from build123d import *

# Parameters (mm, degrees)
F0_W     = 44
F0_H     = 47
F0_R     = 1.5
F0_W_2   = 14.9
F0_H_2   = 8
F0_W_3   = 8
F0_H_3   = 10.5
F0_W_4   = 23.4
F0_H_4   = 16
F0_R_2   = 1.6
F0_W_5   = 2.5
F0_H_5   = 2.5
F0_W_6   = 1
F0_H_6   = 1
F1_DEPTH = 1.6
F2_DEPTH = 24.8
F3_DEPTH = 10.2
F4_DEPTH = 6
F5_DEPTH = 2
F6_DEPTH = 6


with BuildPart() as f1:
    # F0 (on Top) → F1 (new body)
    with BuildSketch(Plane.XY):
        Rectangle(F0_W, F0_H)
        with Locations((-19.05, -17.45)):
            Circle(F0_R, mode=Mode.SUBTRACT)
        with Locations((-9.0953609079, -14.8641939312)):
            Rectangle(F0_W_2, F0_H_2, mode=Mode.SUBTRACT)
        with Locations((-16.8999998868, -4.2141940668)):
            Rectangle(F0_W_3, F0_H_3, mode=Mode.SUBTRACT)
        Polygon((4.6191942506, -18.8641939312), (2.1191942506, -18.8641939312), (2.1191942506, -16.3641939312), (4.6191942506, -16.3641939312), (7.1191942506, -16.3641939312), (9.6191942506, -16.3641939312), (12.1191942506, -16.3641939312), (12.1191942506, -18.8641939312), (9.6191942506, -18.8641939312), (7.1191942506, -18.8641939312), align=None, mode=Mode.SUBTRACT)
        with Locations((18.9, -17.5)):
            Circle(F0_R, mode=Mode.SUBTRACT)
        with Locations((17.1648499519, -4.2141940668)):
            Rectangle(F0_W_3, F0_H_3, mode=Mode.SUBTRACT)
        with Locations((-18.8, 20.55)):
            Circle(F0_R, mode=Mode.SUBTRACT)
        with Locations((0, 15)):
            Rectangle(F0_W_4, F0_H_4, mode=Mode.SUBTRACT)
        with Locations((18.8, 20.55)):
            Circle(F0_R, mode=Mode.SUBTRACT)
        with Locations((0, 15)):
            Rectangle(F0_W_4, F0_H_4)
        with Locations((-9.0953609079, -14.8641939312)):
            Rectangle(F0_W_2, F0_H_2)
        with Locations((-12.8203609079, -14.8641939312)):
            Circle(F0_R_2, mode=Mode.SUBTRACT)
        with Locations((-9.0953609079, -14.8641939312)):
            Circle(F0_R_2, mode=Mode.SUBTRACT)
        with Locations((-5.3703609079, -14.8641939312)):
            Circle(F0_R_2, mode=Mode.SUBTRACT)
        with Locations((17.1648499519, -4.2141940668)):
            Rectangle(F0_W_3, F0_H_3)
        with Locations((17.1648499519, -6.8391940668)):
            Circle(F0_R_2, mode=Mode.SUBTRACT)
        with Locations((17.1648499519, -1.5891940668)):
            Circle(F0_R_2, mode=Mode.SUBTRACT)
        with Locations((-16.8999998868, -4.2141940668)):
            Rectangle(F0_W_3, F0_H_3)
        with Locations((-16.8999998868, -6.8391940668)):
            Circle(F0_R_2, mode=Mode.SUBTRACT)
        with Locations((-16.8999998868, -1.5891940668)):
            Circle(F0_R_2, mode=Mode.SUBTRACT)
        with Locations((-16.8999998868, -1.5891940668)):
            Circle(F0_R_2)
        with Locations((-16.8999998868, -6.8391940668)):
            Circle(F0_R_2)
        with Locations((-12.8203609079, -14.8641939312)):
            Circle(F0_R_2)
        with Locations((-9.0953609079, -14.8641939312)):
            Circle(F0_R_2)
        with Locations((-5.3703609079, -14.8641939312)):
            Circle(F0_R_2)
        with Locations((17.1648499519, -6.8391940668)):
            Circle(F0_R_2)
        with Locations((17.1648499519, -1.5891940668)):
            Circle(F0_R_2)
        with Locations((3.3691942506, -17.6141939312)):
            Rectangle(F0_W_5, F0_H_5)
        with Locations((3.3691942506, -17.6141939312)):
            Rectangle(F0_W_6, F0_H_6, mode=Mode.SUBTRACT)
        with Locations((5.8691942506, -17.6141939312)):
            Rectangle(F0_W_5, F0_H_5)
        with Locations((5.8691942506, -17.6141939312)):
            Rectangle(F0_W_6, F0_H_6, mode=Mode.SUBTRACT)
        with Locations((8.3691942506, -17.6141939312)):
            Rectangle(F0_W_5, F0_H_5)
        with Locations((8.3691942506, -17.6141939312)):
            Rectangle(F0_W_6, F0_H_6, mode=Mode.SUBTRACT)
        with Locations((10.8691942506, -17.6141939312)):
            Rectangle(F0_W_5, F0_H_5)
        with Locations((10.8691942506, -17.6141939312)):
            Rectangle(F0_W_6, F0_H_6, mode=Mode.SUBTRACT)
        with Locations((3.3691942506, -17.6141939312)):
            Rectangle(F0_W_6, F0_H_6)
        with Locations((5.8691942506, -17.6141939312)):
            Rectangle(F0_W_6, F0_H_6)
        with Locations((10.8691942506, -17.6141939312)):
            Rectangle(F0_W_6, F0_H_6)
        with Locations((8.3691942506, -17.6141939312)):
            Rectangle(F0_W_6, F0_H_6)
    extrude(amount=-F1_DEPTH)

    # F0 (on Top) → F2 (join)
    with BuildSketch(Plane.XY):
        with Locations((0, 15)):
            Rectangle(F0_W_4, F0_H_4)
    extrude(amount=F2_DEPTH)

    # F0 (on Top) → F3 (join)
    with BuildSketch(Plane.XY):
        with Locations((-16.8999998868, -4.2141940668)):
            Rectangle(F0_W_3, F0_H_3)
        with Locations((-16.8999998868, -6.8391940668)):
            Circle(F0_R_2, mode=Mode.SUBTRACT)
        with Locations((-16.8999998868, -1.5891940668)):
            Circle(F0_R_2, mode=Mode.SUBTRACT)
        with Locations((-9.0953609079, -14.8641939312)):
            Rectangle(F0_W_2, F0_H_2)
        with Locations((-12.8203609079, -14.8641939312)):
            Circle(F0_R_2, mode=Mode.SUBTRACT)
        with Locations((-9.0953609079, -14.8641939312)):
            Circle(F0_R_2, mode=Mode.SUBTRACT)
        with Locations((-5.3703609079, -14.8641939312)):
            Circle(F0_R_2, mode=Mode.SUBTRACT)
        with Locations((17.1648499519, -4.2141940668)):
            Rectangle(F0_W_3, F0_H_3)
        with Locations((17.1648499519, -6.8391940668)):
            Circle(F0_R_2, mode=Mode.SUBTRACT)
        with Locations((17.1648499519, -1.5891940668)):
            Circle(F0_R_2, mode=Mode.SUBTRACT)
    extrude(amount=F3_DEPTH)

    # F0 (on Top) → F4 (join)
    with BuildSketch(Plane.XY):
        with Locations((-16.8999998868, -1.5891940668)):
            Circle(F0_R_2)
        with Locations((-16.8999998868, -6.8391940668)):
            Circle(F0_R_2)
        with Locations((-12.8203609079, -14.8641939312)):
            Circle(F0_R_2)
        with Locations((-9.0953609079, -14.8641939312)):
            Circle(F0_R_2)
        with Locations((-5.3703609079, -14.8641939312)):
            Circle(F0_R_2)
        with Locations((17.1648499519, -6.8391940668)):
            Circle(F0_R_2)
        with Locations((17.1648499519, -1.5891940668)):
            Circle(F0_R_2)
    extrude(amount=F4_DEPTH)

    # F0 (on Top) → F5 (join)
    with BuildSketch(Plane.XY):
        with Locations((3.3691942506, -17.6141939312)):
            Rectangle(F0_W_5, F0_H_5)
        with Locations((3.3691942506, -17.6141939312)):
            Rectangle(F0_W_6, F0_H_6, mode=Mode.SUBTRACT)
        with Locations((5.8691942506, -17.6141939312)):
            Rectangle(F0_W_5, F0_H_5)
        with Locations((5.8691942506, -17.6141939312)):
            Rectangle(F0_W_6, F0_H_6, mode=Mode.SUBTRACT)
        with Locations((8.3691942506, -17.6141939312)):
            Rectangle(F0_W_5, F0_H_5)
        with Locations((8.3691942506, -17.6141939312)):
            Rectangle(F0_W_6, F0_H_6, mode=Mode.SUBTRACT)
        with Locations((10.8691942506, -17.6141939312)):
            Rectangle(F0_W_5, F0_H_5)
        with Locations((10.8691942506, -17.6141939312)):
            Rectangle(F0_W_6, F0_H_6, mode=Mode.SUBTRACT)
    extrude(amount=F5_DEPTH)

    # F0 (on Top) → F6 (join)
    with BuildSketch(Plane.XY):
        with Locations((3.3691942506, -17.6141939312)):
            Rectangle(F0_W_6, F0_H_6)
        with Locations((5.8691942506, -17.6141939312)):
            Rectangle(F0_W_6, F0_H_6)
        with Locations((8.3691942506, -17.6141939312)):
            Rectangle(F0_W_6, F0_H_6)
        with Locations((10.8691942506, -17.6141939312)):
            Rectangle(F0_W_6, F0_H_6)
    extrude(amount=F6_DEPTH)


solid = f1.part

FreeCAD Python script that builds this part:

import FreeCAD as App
import Part
import Sketcher


def add_polygon(sketch, points):
    """Adds a closed chain of lines whose ends are joined by coincident constraints."""
    first, n = sketch.GeometryCount, len(points)
    for a, b in zip(points, points[1:] + points[:1]):
        sketch.addGeometry(Part.LineSegment(App.Vector(*a, 0), App.Vector(*b, 0)), False)
    for i in range(n):
        sketch.addConstraint(Sketcher.Constraint("Coincident", first + i, 2, first + (i + 1) % n, 1))

doc = App.newDocument("Part")
body = doc.addObject("PartDesign::Body", "Body")

# Sketch on XY plane
sketch1 = body.newObject("Sketcher::SketchObject", "Sketch")
sketch1.AttachmentSupport = (doc.getObject("XY_Plane"), [""])
sketch1.MapMode = "FlatFace"
add_polygon(sketch1, [(-22, 23.5), (-22, -23.5), (22, -23.5), (22, 23.5)])  # lines 0-3
sketch1.addGeometry(Part.Circle(App.Vector(-19.05, -17.45, 0), App.Vector(0, 0, 1), 1.5), False)  # 4
sketch1.addGeometry(Part.Circle(App.Vector(18.9, -17.5, 0), App.Vector(0, 0, 1), 1.5), False)  # 5
sketch1.addGeometry(Part.Circle(App.Vector(-18.8, 20.55, 0), App.Vector(0, 0, 1), 1.5), False)  # 6
sketch1.addGeometry(Part.Circle(App.Vector(18.8, 20.55, 0), App.Vector(0, 0, 1), 1.5), False)  # 7
sketch1.addConstraint(Sketcher.Constraint("Vertical", 0))
sketch1.addConstraint(Sketcher.Constraint("Horizontal", 1))
sketch1.addConstraint(Sketcher.Constraint("Vertical", 2))
sketch1.addConstraint(Sketcher.Constraint("Horizontal", 3))
sketch1.addConstraint(Sketcher.Constraint("Equal", 4, 5))
sketch1.addConstraint(Sketcher.Constraint("Equal", 5, 6))
sketch1.addConstraint(Sketcher.Constraint("Equal", 6, 7))
sketch1.addConstraint(Sketcher.Constraint("Symmetric", 0, 2, 2, 2, -1, 1))
sketch1.addConstraint(Sketcher.Constraint("Symmetric", 6, 3, 7, 3, -2))
sketch1.addConstraint(Sketcher.Constraint("Diameter", 4, 3.0))
sketch1.addConstraint(Sketcher.Constraint("DistanceX", 1, 1, 1, 2, 44.0))
sketch1.addConstraint(Sketcher.Constraint("DistanceY", 0, 2, 0, 1, 47.0))
sketch1.addConstraint(Sketcher.Constraint("DistanceY", 4, 3, 6, 3, 38.0))
sketch1.addConstraint(Sketcher.Constraint("DistanceY", 0, 2, 5, 3, 6.0))
sketch1.addConstraint(Sketcher.Constraint("DistanceX", -1, 1, 5, 3, 18.9))
sketch1.addConstraint(Sketcher.Constraint("DistanceX", 6, 3, -1, 1, 18.8))
sketch1.addConstraint(Sketcher.Constraint("DistanceX", 4, 3, -1, 1, 19.05))
sketch1.addConstraint(Sketcher.Constraint("DistanceY", 4, 3, -1, 1, 17.45))
pad1 = body.newObject("PartDesign::Pad", "Pad")
pad1.Profile = sketch1
pad1.Length = 1.6
pad1.Reversed = True

# Sketch on XY plane
sketch2 = body.newObject("Sketcher::SketchObject", "Sketch001")
sketch2.AttachmentSupport = (doc.getObject("XY_Plane"), [""])
sketch2.MapMode = "FlatFace"
add_polygon(sketch2, [(-11.7, 23), (-11.7, 7), (11.7, 7), (11.7, 23)])  # lines 0-3
sketch2.addConstraint(Sketcher.Constraint("Vertical", 0))
sketch2.addConstraint(Sketcher.Constraint("Horizontal", 1))
sketch2.addConstraint(Sketcher.Constraint("Vertical", 2))
sketch2.addConstraint(Sketcher.Constraint("Horizontal", 3))
sketch2.addConstraint(Sketcher.Constraint("DistanceY", 0, 2, 0, 1, 16.0))
sketch2.addConstraint(Sketcher.Constraint("DistanceX", 1, 1, 1, 2, 23.4))
sketch2.addConstraint(Sketcher.Constraint("DistanceY", -1, 1, 0, 2, 7.0))
sketch2.addConstraint(Sketcher.Constraint("DistanceX", 0, 2, -1, 1, 11.7))
pad2 = body.newObject("PartDesign::Pad", "Pad001")
pad2.Profile = sketch2
pad2.Length = 24.8

# Sketch on XY plane
sketch3 = body.newObject("Sketcher::SketchObject", "Sketch002")
sketch3.AttachmentSupport = (doc.getObject("XY_Plane"), [""])
sketch3.MapMode = "FlatFace"
add_polygon(sketch3, [(-20.9, 1.035806), (-20.9, -9.464194), (-12.9, -9.464194), (-12.9, 1.035806)])  # lines 0-3
sketch3.addGeometry(Part.Circle(App.Vector(-16.9, -6.839194, 0), App.Vector(0, 0, 1), 1.6), False)  # 4
sketch3.addGeometry(Part.Circle(App.Vector(-16.9, -1.589194, 0), App.Vector(0, 0, 1), 1.6), False)  # 5
add_polygon(sketch3, [(-16.545361, -10.864194), (-16.545361, -18.864194), (-1.645361, -18.864194), (-1.645361, -10.864194)])  # lines 6-9
sketch3.addGeometry(Part.Circle(App.Vector(-12.820361, -14.864194, 0), App.Vector(0, 0, 1), 1.6), False)  # 10
sketch3.addGeometry(Part.Circle(App.Vector(-9.095361, -14.864194, 0), App.Vector(0, 0, 1), 1.6), False)  # 11
sketch3.addGeometry(Part.Circle(App.Vector(-5.370361, -14.864194, 0), App.Vector(0, 0, 1), 1.6), False)  # 12
add_polygon(sketch3, [(13.16485, 1.035806), (13.16485, -9.464194), (21.16485, -9.464194), (21.16485, 1.035806)])  # lines 13-16
sketch3.addGeometry(Part.Circle(App.Vector(17.16485, -6.839194, 0), App.Vector(0, 0, 1), 1.6), False)  # 17
sketch3.addGeometry(Part.Circle(App.Vector(17.16485, -1.589194, 0), App.Vector(0, 0, 1), 1.6), False)  # 18
sketch3.addConstraint(Sketcher.Constraint("Vertical", 0))
sketch3.addConstraint(Sketcher.Constraint("Horizontal", 1))
sketch3.addConstraint(Sketcher.Constraint("Vertical", 2))
sketch3.addConstraint(Sketcher.Constraint("Horizontal", 3))
sketch3.addConstraint(Sketcher.Constraint("Vertical", 6))
sketch3.addConstraint(Sketcher.Constraint("Horizontal", 7))
sketch3.addConstraint(Sketcher.Constraint("Vertical", 8))
sketch3.addConstraint(Sketcher.Constraint("Horizontal", 9))
sketch3.addConstraint(Sketcher.Constraint("Vertical", 13))
sketch3.addConstraint(Sketcher.Constraint("Horizontal", 14))
sketch3.addConstraint(Sketcher.Constraint("Vertical", 15))
sketch3.addConstraint(Sketcher.Constraint("Horizontal", 16))
sketch3.addConstraint(Sketcher.Constraint("Equal", 4, 5))
sketch3.addConstraint(Sketcher.Constraint("Equal", 5, 10))
sketch3.addConstraint(Sketcher.Constraint("Equal", 10, 11))
sketch3.addConstraint(Sketcher.Constraint("Equal", 11, 12))
sketch3.addConstraint(Sketcher.Constraint("Equal", 12, 17))
sketch3.addConstraint(Sketcher.Constraint("Equal", 17, 18))
sketch3.addConstraint(Sketcher.Constraint("Horizontal", 10, 3, 11, 3))
sketch3.addConstraint(Sketcher.Constraint("Horizontal", 11, 3, 12, 3))
sketch3.addConstraint(Sketcher.Constraint("Horizontal", 4, 3, 17, 3))
sketch3.addConstraint(Sketcher.Constraint("Horizontal", 5, 3, 18, 3))
sketch3.addConstraint(Sketcher.Constraint("Horizontal", 1, 2, 13, 2))
sketch3.addConstraint(Sketcher.Constraint("Horizontal", 3, 2, 15, 2))
sketch3.addConstraint(Sketcher.Constraint("Vertical", 4, 3, 5, 3))
sketch3.addConstraint(Sketcher.Constraint("Vertical", 17, 3, 18, 3))
sketch3.addConstraint(Sketcher.Constraint("Equal", 3, 14))
sketch3.addConstraint(Sketcher.Constraint("Equal", 16, 6))
sketch3.addConstraint(Sketcher.Constraint("Diameter", 4, 3.2))
sketch3.addConstraint(Sketcher.Constraint("DistanceX", 1, 1, 1, 2, 8.0))
sketch3.addConstraint(Sketcher.Constraint("DistanceX", 7, 1, 7, 2, 14.9))
sketch3.addConstraint(Sketcher.Constraint("DistanceY", 0, 2, 0, 1, 10.5))
sketch3.addConstraint(Sketcher.Constraint("DistanceX", 0, 2, 4, 3, 4.0))
sketch3.addConstraint(Sketcher.Constraint("DistanceY", 6, 2, 10, 3, 4.0))
sketch3.addConstraint(Sketcher.Constraint("DistanceX", 13, 2, 17, 3, 4.0))
sketch3.addConstraint(Sketcher.Constraint("DistanceX", 4, 3, -1, 1, 16.9))
sketch3.addConstraint(Sketcher.Constraint("DistanceY", 10, 3, 0, 2, 5.4))
sketch3.addConstraint(Sketcher.Constraint("DistanceY", 4, 3, 5, 3, 5.25))
sketch3.addConstraint(Sketcher.Constraint("DistanceX", 10, 3, 12, 3, 7.45))
sketch3.addConstraint(Sketcher.Constraint("DistanceX", 6, 2, 11, 3, 7.45))
sketch3.addConstraint(Sketcher.Constraint("DistanceY", 10, 3, 4, 3, 8.025))
sketch3.addConstraint(Sketcher.Constraint("DistanceX", 10, 3, 11, 3, 3.725))
sketch3.addConstraint(Sketcher.Constraint("DistanceX", 10, 3, -1, 1, 12.820361))
sketch3.addConstraint(Sketcher.Constraint("DistanceX", -1, 1, 17, 3, 17.16485))
sketch3.addConstraint(Sketcher.Constraint("DistanceY", 4, 3, -1, 1, 6.839194))
pad3 = body.newObject("PartDesign::Pad", "Pad002")
pad3.Profile = sketch3
pad3.Length = 10.2

# Sketch on XY plane
sketch4 = body.newObject("Sketcher::SketchObject", "Sketch003")
sketch4.AttachmentSupport = (doc.getObject("XY_Plane"), [""])
sketch4.MapMode = "FlatFace"
sketch4.addGeometry(Part.Circle(App.Vector(-16.9, -1.589194, 0), App.Vector(0, 0, 1), 1.6), False)
sketch4.addGeometry(Part.Circle(App.Vector(-16.9, -6.839194, 0), App.Vector(0, 0, 1), 1.6), False)
sketch4.addGeometry(Part.Circle(App.Vector(-12.820361, -14.864194, 0), App.Vector(0, 0, 1), 1.6), False)
sketch4.addGeometry(Part.Circle(App.Vector(-9.095361, -14.864194, 0), App.Vector(0, 0, 1), 1.6), False)
sketch4.addGeometry(Part.Circle(App.Vector(-5.370361, -14.864194, 0), App.Vector(0, 0, 1), 1.6), False)
sketch4.addGeometry(Part.Circle(App.Vector(17.16485, -6.839194, 0), App.Vector(0, 0, 1), 1.6), False)
sketch4.addGeometry(Part.Circle(App.Vector(17.16485, -1.589194, 0), App.Vector(0, 0, 1), 1.6), False)
sketch4.addConstraint(Sketcher.Constraint("Equal", 0, 1))
sketch4.addConstraint(Sketcher.Constraint("Equal", 1, 2))
sketch4.addConstraint(Sketcher.Constraint("Equal", 2, 3))
sketch4.addConstraint(Sketcher.Constraint("Equal", 3, 4))
sketch4.addConstraint(Sketcher.Constraint("Equal", 4, 5))
sketch4.addConstraint(Sketcher.Constraint("Equal", 5, 6))
sketch4.addConstraint(Sketcher.Constraint("Horizontal", 2, 3, 3, 3))
sketch4.addConstraint(Sketcher.Constraint("Horizontal", 3, 3, 4, 3))
sketch4.addConstraint(Sketcher.Constraint("Horizontal", 1, 3, 5, 3))
sketch4.addConstraint(Sketcher.Constraint("Horizontal", 0, 3, 6, 3))
sketch4.addConstraint(Sketcher.Constraint("Vertical", 0, 3, 1, 3))
sketch4.addConstraint(Sketcher.Constraint("Vertical", 5, 3, 6, 3))
sketch4.addConstraint(Sketcher.Constraint("Diameter", 0, 3.2))
sketch4.addConstraint(Sketcher.Constraint("DistanceX", 0, 3, -1, 1, 16.9))
sketch4.addConstraint(Sketcher.Constraint("DistanceY", 1, 3, 0, 3, 5.25))
sketch4.addConstraint(Sketcher.Constraint("DistanceX", 2, 3, 4, 3, 7.45))
sketch4.addConstraint(Sketcher.Constraint("DistanceY", 2, 3, 1, 3, 8.025))
sketch4.addConstraint(Sketcher.Constraint("DistanceX", 2, 3, 3, 3, 3.725))
sketch4.addConstraint(Sketcher.Constraint("DistanceX", 2, 3, -1, 1, 12.820361))
sketch4.addConstraint(Sketcher.Constraint("DistanceX", -1, 1, 5, 3, 17.16485))
sketch4.addConstraint(Sketcher.Constraint("DistanceY", 0, 3, -1, 1, 1.589194))
pad4 = body.newObject("PartDesign::Pad", "Pad003")
pad4.Profile = sketch4
pad4.Length = 6

# Sketch on XY plane
sketch5 = body.newObject("Sketcher::SketchObject", "Sketch004")
sketch5.AttachmentSupport = (doc.getObject("XY_Plane"), [""])
sketch5.MapMode = "FlatFace"
add_polygon(sketch5, [(2.119194, -16.364194), (2.119194, -18.864194), (12.119194, -18.864194), (12.119194, -16.364194)])  # lines 0-3
add_polygon(sketch5, [(3.869194, -18.114194), (2.869194, -18.114194), (2.869194, -17.114194), (3.869194, -17.114194)])  # lines 4-7
add_polygon(sketch5, [(6.369194, -18.114194), (5.369194, -18.114194), (5.369194, -17.114194), (6.369194, -17.114194)])  # lines 8-11
add_polygon(sketch5, [(8.869194, -18.114194), (7.869194, -18.114194), (7.869194, -17.114194), (8.869194, -17.114194)])  # lines 12-15
add_polygon(sketch5, [(11.369194, -18.114194), (10.369194, -18.114194), (10.369194, -17.114194), (11.369194, -17.114194)])  # lines 16-19
sketch5.addConstraint(Sketcher.Constraint("Vertical", 0))
sketch5.addConstraint(Sketcher.Constraint("Horizontal", 1))
sketch5.addConstraint(Sketcher.Constraint("Vertical", 2))
sketch5.addConstraint(Sketcher.Constraint("Horizontal", 3))
sketch5.addConstraint(Sketcher.Constraint("Horizontal", 4))
sketch5.addConstraint(Sketcher.Constraint("Vertical", 5))
sketch5.addConstraint(Sketcher.Constraint("Horizontal", 6))
sketch5.addConstraint(Sketcher.Constraint("Vertical", 7))
sketch5.addConstraint(Sketcher.Constraint("Horizontal", 8))
sketch5.addConstraint(Sketcher.Constraint("Vertical", 9))
sketch5.addConstraint(Sketcher.Constraint("Horizontal", 10))
sketch5.addConstraint(Sketcher.Constraint("Vertical", 11))
sketch5.addConstraint(Sketcher.Constraint("Horizontal", 12))
sketch5.addConstraint(Sketcher.Constraint("Vertical", 13))
sketch5.addConstraint(Sketcher.Constraint("Horizontal", 14))
sketch5.addConstraint(Sketcher.Constraint("Vertical", 15))
sketch5.addConstraint(Sketcher.Constraint("Horizontal", 16))
sketch5.addConstraint(Sketcher.Constraint("Vertical", 17))
sketch5.addConstraint(Sketcher.Constraint("Horizontal", 18))
sketch5.addConstraint(Sketcher.Constraint("Vertical", 19))
sketch5.addConstraint(Sketcher.Constraint("Horizontal", 7, 2, 8, 2))
sketch5.addConstraint(Sketcher.Constraint("Horizontal", 6, 2, 9, 2))
sketch5.addConstraint(Sketcher.Constraint("Horizontal", 11, 2, 12, 2))
sketch5.addConstraint(Sketcher.Constraint("Horizontal", 10, 2, 13, 2))
sketch5.addConstraint(Sketcher.Constraint("Horizontal", 15, 2, 16, 2))
sketch5.addConstraint(Sketcher.Constraint("Horizontal", 14, 2, 17, 2))
sketch5.addConstraint(Sketcher.Constraint("Equal", 6, 8))
sketch5.addConstraint(Sketcher.Constraint("Equal", 10, 12))
sketch5.addConstraint(Sketcher.Constraint("Equal", 14, 16))
sketch5.addConstraint(Sketcher.Constraint("Equal", 18, 5))
sketch5.addConstraint(Sketcher.Constraint("DistanceX", 1, 1, 1, 2, 10.0))
sketch5.addConstraint(Sketcher.Constraint("DistanceX", 4, 2, 4, 1, 1.0))
sketch5.addConstraint(Sketcher.Constraint("DistanceY", 0, 2, 0, 1, 2.5))
sketch5.addConstraint(Sketcher.Constraint("DistanceX", 7, 2, 12, 2, 4.0))
sketch5.addConstraint(Sketcher.Constraint("DistanceX", 7, 2, 8, 2, 1.5))
sketch5.addConstraint(Sketcher.Constraint("DistanceX", 15, 2, 16, 2, 1.5))
sketch5.addConstraint(Sketcher.Constraint("DistanceX", 0, 2, 4, 2, 0.75))
sketch5.addConstraint(Sketcher.Constraint("DistanceY", 0, 2, 4, 2, 0.75))
sketch5.addConstraint(Sketcher.Constraint("DistanceX", -1, 1, 0, 2, 2.119194))
sketch5.addConstraint(Sketcher.Constraint("DistanceY", 0, 2, -1, 1, 18.864194))
pad5 = body.newObject("PartDesign::Pad", "Pad004")
pad5.Profile = sketch5
pad5.Length = 2

# Sketch on XY plane
sketch6 = body.newObject("Sketcher::SketchObject", "Sketch005")
sketch6.AttachmentSupport = (doc.getObject("XY_Plane"), [""])
sketch6.MapMode = "FlatFace"
add_polygon(sketch6, [(2.869194, -17.114194), (2.869194, -18.114194), (3.869194, -18.114194), (3.869194, -17.114194)])  # lines 0-3
add_polygon(sketch6, [(5.369194, -17.114194), (5.369194, -18.114194), (6.369194, -18.114194), (6.369194, -17.114194)])  # lines 4-7
add_polygon(sketch6, [(7.869194, -17.114194), (7.869194, -18.114194), (8.869194, -18.114194), (8.869194, -17.114194)])  # lines 8-11
add_polygon(sketch6, [(10.369194, -17.114194), (10.369194, -18.114194), (11.369194, -18.114194), (11.369194, -17.114194)])  # lines 12-15
sketch6.addConstraint(Sketcher.Constraint("Vertical", 0))
sketch6.addConstraint(Sketcher.Constraint("Horizontal", 1))
sketch6.addConstraint(Sketcher.Constraint("Vertical", 2))
sketch6.addConstraint(Sketcher.Constraint("Horizontal", 3))
sketch6.addConstraint(Sketcher.Constraint("Vertical", 4))
sketch6.addConstraint(Sketcher.Constraint("Horizontal", 5))
sketch6.addConstraint(Sketcher.Constraint("Vertical", 6))
sketch6.addConstraint(Sketcher.Constraint("Horizontal", 7))
sketch6.addConstraint(Sketcher.Constraint("Vertical", 8))
sketch6.addConstraint(Sketcher.Constraint("Horizontal", 9))
sketch6.addConstraint(Sketcher.Constraint("Vertical", 10))
sketch6.addConstraint(Sketcher.Constraint("Horizontal", 11))
sketch6.addConstraint(Sketcher.Constraint("Vertical", 12))
sketch6.addConstraint(Sketcher.Constraint("Horizontal", 13))
sketch6.addConstraint(Sketcher.Constraint("Vertical", 14))
sketch6.addConstraint(Sketcher.Constraint("Horizontal", 15))
sketch6.addConstraint(Sketcher.Constraint("Horizontal", 1, 2, 4, 2))
sketch6.addConstraint(Sketcher.Constraint("Horizontal", 3, 2, 6, 2))
sketch6.addConstraint(Sketcher.Constraint("Horizontal", 5, 2, 8, 2))
sketch6.addConstraint(Sketcher.Constraint("Horizontal", 7, 2, 10, 2))
sketch6.addConstraint(Sketcher.Constraint("Horizontal", 9, 2, 12, 2))
sketch6.addConstraint(Sketcher.Constraint("Horizontal", 11, 2, 14, 2))
sketch6.addConstraint(Sketcher.Constraint("Equal", 3, 5))
sketch6.addConstraint(Sketcher.Constraint("Equal", 7, 9))
sketch6.addConstraint(Sketcher.Constraint("Equal", 11, 13))
sketch6.addConstraint(Sketcher.Constraint("Equal", 15, 0))
sketch6.addConstraint(Sketcher.Constraint("DistanceX", 1, 1, 1, 2, 1.0))
sketch6.addConstraint(Sketcher.Constraint("DistanceX", 1, 2, 8, 2, 4.0))
sketch6.addConstraint(Sketcher.Constraint("DistanceX", 5, 2, 12, 2, 4.0))
sketch6.addConstraint(Sketcher.Constraint("DistanceX", 1, 2, 4, 2, 1.5))
sketch6.addConstraint(Sketcher.Constraint("DistanceX", -1, 1, 0, 2, 2.869194))
sketch6.addConstraint(Sketcher.Constraint("DistanceY", 0, 2, -1, 1, 18.114194))
pad6 = body.newObject("PartDesign::Pad", "Pad005")
pad6.Profile = sketch6
pad6.Length = 6

doc.recompute()
